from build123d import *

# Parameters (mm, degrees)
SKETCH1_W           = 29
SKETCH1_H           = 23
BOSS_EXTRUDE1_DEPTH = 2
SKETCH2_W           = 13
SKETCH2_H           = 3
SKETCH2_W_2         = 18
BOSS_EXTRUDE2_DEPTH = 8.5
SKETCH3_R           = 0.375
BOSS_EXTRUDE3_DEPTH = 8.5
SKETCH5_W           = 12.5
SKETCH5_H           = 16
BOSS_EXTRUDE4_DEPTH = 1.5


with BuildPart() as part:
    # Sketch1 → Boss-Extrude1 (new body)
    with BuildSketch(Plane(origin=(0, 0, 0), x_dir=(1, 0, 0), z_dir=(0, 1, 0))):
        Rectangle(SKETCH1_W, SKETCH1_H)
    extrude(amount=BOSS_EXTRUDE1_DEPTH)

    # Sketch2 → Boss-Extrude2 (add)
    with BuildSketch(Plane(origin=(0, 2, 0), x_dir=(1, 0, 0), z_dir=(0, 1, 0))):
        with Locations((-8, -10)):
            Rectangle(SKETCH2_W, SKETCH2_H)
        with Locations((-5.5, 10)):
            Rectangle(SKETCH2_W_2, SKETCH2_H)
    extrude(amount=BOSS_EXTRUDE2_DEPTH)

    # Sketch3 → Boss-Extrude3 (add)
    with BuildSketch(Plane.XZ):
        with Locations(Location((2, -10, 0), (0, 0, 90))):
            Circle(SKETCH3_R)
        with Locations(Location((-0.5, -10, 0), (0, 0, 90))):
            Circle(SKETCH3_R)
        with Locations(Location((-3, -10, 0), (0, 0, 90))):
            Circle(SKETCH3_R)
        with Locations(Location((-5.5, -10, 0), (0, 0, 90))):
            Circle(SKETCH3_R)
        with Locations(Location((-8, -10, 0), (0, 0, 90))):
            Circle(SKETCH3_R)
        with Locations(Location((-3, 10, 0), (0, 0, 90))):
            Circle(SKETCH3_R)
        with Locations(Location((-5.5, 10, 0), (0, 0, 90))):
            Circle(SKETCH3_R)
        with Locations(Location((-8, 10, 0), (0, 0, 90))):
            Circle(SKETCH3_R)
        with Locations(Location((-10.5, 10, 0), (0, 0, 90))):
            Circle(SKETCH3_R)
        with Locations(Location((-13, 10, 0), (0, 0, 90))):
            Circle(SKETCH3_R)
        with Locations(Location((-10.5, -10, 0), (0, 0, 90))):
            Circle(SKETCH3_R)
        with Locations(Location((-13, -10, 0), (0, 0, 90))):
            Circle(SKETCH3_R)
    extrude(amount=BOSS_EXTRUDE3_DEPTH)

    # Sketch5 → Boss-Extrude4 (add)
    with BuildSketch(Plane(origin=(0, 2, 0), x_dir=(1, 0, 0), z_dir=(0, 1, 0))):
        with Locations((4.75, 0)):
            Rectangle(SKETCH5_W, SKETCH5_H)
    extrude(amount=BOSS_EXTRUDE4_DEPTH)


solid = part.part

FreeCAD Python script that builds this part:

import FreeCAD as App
import Part
import Sketcher
Q = App.Units.Quantity


def add_polygon(sketch, points):
    """Adds a closed chain of lines whose ends are joined by coincident constraints."""
    first, n = sketch.GeometryCount, len(points)
    for a, b in zip(points, points[1:] + points[:1]):
        sketch.addGeometry(Part.LineSegment(App.Vector(*a, 0), App.Vector(*b, 0)), False)
    for i in range(n):
        sketch.addConstraint(Sketcher.Constraint("Coincident", first + i, 2, first + (i + 1) % n, 1))

doc = App.newDocument("Part")
body = doc.addObject("PartDesign::Body", "Body")

# Sketch on XZ plane
sketch1 = body.newObject("Sketcher::SketchObject", "Sketch")
sketch1.AttachmentSupport = (doc.getObject("XZ_Plane"), [""])
sketch1.MapMode = "FlatFace"
add_polygon(sketch1, [(-14.5, -11.5), (-14.5, 11.5), (14.5, 11.5), (14.5, -11.5)])  # lines 0-3
sketch1.addConstraint([
    Sketcher.Constraint("Vertical", 0),
    Sketcher.Constraint("Horizontal", 1),
    Sketcher.Constraint("Vertical", 2),
    Sketcher.Constraint("Horizontal", 3),
    Sketcher.Constraint("Symmetric", 0, 2, 2, 2, -1, 1),
    Sketcher.Constraint("DistanceX", 1, 1, 1, 2, Q("29 mm")),
    Sketcher.Constraint("DistanceY", 0, 1, 0, 2, Q("23 mm")),
])
pad1 = body.newObject("PartDesign::Pad", "Pad")
pad1.Profile = sketch1
pad1.Length = 2
pad1.Reversed = True

# Sketch on XZ plane
sketch2 = body.newObject("Sketcher::SketchObject", "Sketch001")
sketch2.AttachmentSupport = (doc.getObject("XZ_Plane"), [""])
sketch2.MapMode = "FlatFace"
sketch2.AttachmentOffset = App.Placement(App.Vector(0, 0, -2), App.Rotation())
add_polygon(sketch2, [(-14.5, 8.5), (-14.5, 11.5), (-1.5, 11.5), (-1.5, 8.5)])  # lines 0-3
add_polygon(sketch2, [(-14.5, -11.5), (-14.5, -8.5), (3.5, -8.5), (3.5, -11.5)])  # lines 4-7
sketch2.addConstraint([
    Sketcher.Constraint("Vertical", 0),
    Sketcher.Constraint("Horizontal", 1),
    Sketcher.Constraint("Vertical", 2),
    Sketcher.Constraint("Horizontal", 3),
    Sketcher.Constraint("Vertical", 4),
    Sketcher.Constraint("Horizontal", 5),
    Sketcher.Constraint("Vertical", 6),
    Sketcher.Constraint("Horizontal", 7),
    Sketcher.Constraint("Symmetric", 3, 2, 4, 2, -1),
    Sketcher.Constraint("Equal", 2, 4),
    Sketcher.Constraint("DistanceX", 1, 1, 1, 2, Q("13 mm")),
    Sketcher.Constraint("DistanceX", 5, 1, 5, 2, Q("18 mm")),
    Sketcher.Constraint("DistanceY", 0, 1, 0, 2, Q("3 mm")),
    Sketcher.Constraint("DistanceY", 4, 2, 3, 2, Q("17 mm")),
    Sketcher.Constraint("DistanceX", 0, 2, -1, 1, Q("14.5 mm")),
])
pad2 = body.newObject("PartDesign::Pad", "Pad001")
pad2.Profile = sketch2
pad2.Length = 8.5
pad2.Reversed = True

# Sketch on XZ plane
sketch3 = body.newObject("Sketcher::SketchObject", "Sketch002")
sketch3.AttachmentSupport = (doc.getObject("XZ_Plane"), [""])
sketch3.MapMode = "FlatFace"
sketch3.addGeometry([
    Part.Circle(App.Vector(2, -10, 0), App.Vector(0, 0, 1), 0.375),  # 0
    Part.Circle(App.Vector(-0.5, -10, 0), App.Vector(0, 0, 1), 0.375),  # 1
    Part.Circle(App.Vector(-3, -10, 0), App.Vector(0, 0, 1), 0.375),  # 2
    Part.Circle(App.Vector(-5.5, -10, 0), App.Vector(0, 0, 1), 0.375),  # 3
    Part.Circle(App.Vector(-8, -10, 0), App.Vector(0, 0, 1), 0.375),  # 4
    Part.Circle(App.Vector(-3, 10, 0), App.Vector(0, 0, 1), 0.375),  # 5
    Part.Circle(App.Vector(-5.5, 10, 0), App.Vector(0, 0, 1), 0.375),  # 6
    Part.Circle(App.Vector(-8, 10, 0), App.Vector(0, 0, 1), 0.375),  # 7
    Part.Circle(App.Vector(-10.5, 10, 0), App.Vector(0, 0, 1), 0.375),  # 8
    Part.Circle(App.Vector(-13, 10, 0), App.Vector(0, 0, 1), 0.375),  # 9
    Part.Circle(App.Vector(-10.5, -10, 0), App.Vector(0, 0, 1), 0.375),  # 10
    Part.Circle(App.Vector(-13, -10, 0), App.Vector(0, 0, 1), 0.375),  # 11
], False)
sketch3.addConstraint([
    Sketcher.Constraint("Equal", 0, 1),
    Sketcher.Constraint("Equal", 1, 2),
    Sketcher.Constraint("Equal", 2, 3),
    Sketcher.Constraint("Equal", 3, 4),
    Sketcher.Constraint("Equal", 4, 5),
    Sketcher.Constraint("Equal", 5, 6),
    Sketcher.Constraint("Equal", 6, 7),
    Sketcher.Constraint("Equal", 7, 8),
    Sketcher.Constraint("Equal", 8, 9),
    Sketcher.Constraint("Equal", 9, 10),
    Sketcher.Constraint("Equal", 10, 11),
    Sketcher.Constraint("Symmetric", 2, 3, 5, 3, -1),
    Sketcher.Constraint("Symmetric", 3, 3, 6, 3, -1),
    Sketcher.Constraint("Symmetric", 4, 3, 7, 3, -1),
    Sketcher.Constraint("Symmetric", 8, 3, 10, 3, -1),
    Sketcher.Constraint("Symmetric", 9, 3, 11, 3, -1),
    Sketcher.Constraint("Horizontal", 0, 3, 1, 3),
    Sketcher.Constraint("Horizontal", 1, 3, 2, 3),
    Sketcher.Constraint("Horizontal", 2, 3, 3, 3),
    Sketcher.Constraint("Horizontal", 3, 3, 4, 3),
    Sketcher.Constraint("Horizontal", 7, 3, 8, 3),
    Sketcher.Constraint("Horizontal", 8, 3, 9, 3),
    Sketcher.Constraint("Diameter", 0, Q("0.75 mm")),
    Sketcher.Constraint("DistanceX", -1, 1, 0, 3, Q("2 mm")),
    Sketcher.Constraint("DistanceY", 0, 3, -1, 1, Q("10 mm")),
    Sketcher.Constraint("DistanceX", 2, 3, -1, 1, Q("3 mm")),
    Sketcher.Constraint("DistanceX", 4, 3, -1, 1, Q("8 mm")),
    Sketcher.Constraint("DistanceX", 9, 3, -1, 1, Q("13 mm")),
    Sketcher.Constraint("DistanceX", 3, 3, 1, 3, Q("5 mm")),
    Sketcher.Constraint("DistanceX", 8, 3, 6, 3, Q("5 mm")),
    Sketcher.Constraint("DistanceX", 1, 3, -1, 1, Q("0.5 mm")),
])
pad3 = body.newObject("PartDesign::Pad", "Pad002")
pad3.Profile = sketch3
pad3.Length = 8.5

# Sketch on XZ plane
sketch4 = body.newObject("Sketcher::SketchObject", "Sketch003")
sketch4.AttachmentSupport = (doc.getObject("XZ_Plane"), [""])
sketch4.MapMode = "FlatFace"
sketch4.AttachmentOffset = App.Placement(App.Vector(0, 0, -2), App.Rotation())
add_polygon(sketch4, [(-1.5, -8), (-1.5, 8), (11, 8), (11, -8)])  # lines 0-3
sketch4.addConstraint([
    Sketcher.Constraint("Vertical", 0),
    Sketcher.Constraint("Horizontal", 1),
    Sketcher.Constraint("Vertical", 2),
    Sketcher.Constraint("Horizontal", 3),
    Sketcher.Constraint("DistanceY", 0, 1, 0, 2, Q("16 mm")),
    Sketcher.Constraint("DistanceX", 1, 1, 1, 2, Q("12.5 mm")),
    Sketcher.Constraint("DistanceY", -1, 1, 0, 2, Q("8 mm")),
    Sketcher.Constraint("DistanceX", -1, 1, 1, 2, Q("11 mm")),
])
pad4 = body.newObject("PartDesign::Pad", "Pad003")
pad4.Profile = sketch4
pad4.Length = 1.5
pad4.Reversed = True

doc.recompute()
